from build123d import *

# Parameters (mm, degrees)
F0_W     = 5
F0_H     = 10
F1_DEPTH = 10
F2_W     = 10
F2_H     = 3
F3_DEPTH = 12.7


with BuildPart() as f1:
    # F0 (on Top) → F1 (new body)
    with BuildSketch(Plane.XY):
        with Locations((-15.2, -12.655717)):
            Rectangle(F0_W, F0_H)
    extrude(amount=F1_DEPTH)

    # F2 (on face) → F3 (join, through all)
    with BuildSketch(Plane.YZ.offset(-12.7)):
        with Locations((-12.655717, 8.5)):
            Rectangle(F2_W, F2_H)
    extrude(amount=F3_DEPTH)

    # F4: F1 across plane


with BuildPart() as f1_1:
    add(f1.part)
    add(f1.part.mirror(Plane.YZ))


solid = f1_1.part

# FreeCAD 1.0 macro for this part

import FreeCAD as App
import Part
import Sketcher


def add_polygon(sketch, points):
    """Adds a closed chain of lines whose ends are joined by coincident constraints."""
    first, n = sketch.GeometryCount, len(points)
    for a, b in zip(points, points[1:] + points[:1]):
        sketch.addGeometry(Part.LineSegment(App.Vector(*a, 0), App.Vector(*b, 0)), False)
    for i in range(n):
        sketch.addConstraint(Sketcher.Constraint("Coincident", first + i, 2, first + (i + 1) % n, 1))

doc = App.newDocument("Part")
body = doc.addObject("PartDesign::Body", "Body")

# Sketch on XY plane
sketch1 = body.newObject("Sketcher::SketchObject", "Sketch")
sketch1.AttachmentSupport = (doc.getObject("XY_Plane"), [""])
sketch1.MapMode = "FlatFace"
add_polygon(sketch1, [(-18, -8), (-18, -18), (-13, -18), (-13, -8)])  # lines 0-3
sketch1.addConstraint([
    Sketcher.Constraint("Vertical", 0),
    Sketcher.Constraint("Horizontal", 1),
    Sketcher.Constraint("Vertical", 2),
    Sketcher.Constraint("Horizontal", 3),
    Sketcher.Constraint("DistanceX", 1, 1, 1, 2, 5.0),
    Sketcher.Constraint("DistanceY", 0, 2, 0, 1, 10.0),
    Sketcher.Constraint("DistanceX", 0, 2, -1, 1, 17.7),
    Sketcher.Constraint("DistanceY", 0, 2, -1, 1, 17.655717),
])
pad1 = body.newObject("PartDesign::Pad", "Pad")
pad1.Profile = sketch1
pad1.Length = 10

# Sketch on YZ plane
sketch2 = body.newObject("Sketcher::SketchObject", "Sketch001")
sketch2.AttachmentSupport = (doc.getObject("YZ_Plane"), [""])
sketch2.MapMode = "FlatFace"
sketch2.AttachmentOffset = App.Placement(App.Vector(0, 0, -12.7), App.Rotation())
add_polygon(sketch2, [(-17.7, 10), (-17.7, 7), (-7.7, 7), (-7.7, 10)])  # lines 0-3
sketch2.addConstraint([
    Sketcher.Constraint("Vertical", 0),
    Sketcher.Constraint("Horizontal", 1),
    Sketcher.Constraint("Vertical", 2),
    Sketcher.Constraint("Horizontal", 3),
    Sketcher.Constraint("DistanceX", 1, 1, 1, 2, 10.0),
    Sketcher.Constraint("DistanceY", 0, 2, 0, 1, 3.0),
    Sketcher.Constraint("DistanceY", -1, 1, 0, 2, 7.0),
    Sketcher.Constraint("DistanceX", 0, 2, -1, 1, 17.655717),
])
pad2 = body.newObject("PartDesign::Pad", "Pad001")
pad2.Profile = sketch2
pad2.Length = 12.7
body2 = doc.addObject("PartDesign::Body", "Body001")
doc.recompute()

body2.BaseFeature = body
doc.recompute()

mirroring = doc.addObject("Part::Mirroring", "Mirroring")
mirroring.Source = body
mirroring.Base = App.Vector(0, 0, 0)
mirroring.Normal = App.Vector(1, 0, 0)
body3 = doc.addObject("PartDesign::Body", "Body002")
body3.BaseFeature = mirroring
boolean = body2.newObject("PartDesign::Boolean", "Boolean")
boolean.Type = "Fuse"
boolean.addObjects([body3])
doc.recompute()
mirroring.Visibility = False

doc.recompute()
